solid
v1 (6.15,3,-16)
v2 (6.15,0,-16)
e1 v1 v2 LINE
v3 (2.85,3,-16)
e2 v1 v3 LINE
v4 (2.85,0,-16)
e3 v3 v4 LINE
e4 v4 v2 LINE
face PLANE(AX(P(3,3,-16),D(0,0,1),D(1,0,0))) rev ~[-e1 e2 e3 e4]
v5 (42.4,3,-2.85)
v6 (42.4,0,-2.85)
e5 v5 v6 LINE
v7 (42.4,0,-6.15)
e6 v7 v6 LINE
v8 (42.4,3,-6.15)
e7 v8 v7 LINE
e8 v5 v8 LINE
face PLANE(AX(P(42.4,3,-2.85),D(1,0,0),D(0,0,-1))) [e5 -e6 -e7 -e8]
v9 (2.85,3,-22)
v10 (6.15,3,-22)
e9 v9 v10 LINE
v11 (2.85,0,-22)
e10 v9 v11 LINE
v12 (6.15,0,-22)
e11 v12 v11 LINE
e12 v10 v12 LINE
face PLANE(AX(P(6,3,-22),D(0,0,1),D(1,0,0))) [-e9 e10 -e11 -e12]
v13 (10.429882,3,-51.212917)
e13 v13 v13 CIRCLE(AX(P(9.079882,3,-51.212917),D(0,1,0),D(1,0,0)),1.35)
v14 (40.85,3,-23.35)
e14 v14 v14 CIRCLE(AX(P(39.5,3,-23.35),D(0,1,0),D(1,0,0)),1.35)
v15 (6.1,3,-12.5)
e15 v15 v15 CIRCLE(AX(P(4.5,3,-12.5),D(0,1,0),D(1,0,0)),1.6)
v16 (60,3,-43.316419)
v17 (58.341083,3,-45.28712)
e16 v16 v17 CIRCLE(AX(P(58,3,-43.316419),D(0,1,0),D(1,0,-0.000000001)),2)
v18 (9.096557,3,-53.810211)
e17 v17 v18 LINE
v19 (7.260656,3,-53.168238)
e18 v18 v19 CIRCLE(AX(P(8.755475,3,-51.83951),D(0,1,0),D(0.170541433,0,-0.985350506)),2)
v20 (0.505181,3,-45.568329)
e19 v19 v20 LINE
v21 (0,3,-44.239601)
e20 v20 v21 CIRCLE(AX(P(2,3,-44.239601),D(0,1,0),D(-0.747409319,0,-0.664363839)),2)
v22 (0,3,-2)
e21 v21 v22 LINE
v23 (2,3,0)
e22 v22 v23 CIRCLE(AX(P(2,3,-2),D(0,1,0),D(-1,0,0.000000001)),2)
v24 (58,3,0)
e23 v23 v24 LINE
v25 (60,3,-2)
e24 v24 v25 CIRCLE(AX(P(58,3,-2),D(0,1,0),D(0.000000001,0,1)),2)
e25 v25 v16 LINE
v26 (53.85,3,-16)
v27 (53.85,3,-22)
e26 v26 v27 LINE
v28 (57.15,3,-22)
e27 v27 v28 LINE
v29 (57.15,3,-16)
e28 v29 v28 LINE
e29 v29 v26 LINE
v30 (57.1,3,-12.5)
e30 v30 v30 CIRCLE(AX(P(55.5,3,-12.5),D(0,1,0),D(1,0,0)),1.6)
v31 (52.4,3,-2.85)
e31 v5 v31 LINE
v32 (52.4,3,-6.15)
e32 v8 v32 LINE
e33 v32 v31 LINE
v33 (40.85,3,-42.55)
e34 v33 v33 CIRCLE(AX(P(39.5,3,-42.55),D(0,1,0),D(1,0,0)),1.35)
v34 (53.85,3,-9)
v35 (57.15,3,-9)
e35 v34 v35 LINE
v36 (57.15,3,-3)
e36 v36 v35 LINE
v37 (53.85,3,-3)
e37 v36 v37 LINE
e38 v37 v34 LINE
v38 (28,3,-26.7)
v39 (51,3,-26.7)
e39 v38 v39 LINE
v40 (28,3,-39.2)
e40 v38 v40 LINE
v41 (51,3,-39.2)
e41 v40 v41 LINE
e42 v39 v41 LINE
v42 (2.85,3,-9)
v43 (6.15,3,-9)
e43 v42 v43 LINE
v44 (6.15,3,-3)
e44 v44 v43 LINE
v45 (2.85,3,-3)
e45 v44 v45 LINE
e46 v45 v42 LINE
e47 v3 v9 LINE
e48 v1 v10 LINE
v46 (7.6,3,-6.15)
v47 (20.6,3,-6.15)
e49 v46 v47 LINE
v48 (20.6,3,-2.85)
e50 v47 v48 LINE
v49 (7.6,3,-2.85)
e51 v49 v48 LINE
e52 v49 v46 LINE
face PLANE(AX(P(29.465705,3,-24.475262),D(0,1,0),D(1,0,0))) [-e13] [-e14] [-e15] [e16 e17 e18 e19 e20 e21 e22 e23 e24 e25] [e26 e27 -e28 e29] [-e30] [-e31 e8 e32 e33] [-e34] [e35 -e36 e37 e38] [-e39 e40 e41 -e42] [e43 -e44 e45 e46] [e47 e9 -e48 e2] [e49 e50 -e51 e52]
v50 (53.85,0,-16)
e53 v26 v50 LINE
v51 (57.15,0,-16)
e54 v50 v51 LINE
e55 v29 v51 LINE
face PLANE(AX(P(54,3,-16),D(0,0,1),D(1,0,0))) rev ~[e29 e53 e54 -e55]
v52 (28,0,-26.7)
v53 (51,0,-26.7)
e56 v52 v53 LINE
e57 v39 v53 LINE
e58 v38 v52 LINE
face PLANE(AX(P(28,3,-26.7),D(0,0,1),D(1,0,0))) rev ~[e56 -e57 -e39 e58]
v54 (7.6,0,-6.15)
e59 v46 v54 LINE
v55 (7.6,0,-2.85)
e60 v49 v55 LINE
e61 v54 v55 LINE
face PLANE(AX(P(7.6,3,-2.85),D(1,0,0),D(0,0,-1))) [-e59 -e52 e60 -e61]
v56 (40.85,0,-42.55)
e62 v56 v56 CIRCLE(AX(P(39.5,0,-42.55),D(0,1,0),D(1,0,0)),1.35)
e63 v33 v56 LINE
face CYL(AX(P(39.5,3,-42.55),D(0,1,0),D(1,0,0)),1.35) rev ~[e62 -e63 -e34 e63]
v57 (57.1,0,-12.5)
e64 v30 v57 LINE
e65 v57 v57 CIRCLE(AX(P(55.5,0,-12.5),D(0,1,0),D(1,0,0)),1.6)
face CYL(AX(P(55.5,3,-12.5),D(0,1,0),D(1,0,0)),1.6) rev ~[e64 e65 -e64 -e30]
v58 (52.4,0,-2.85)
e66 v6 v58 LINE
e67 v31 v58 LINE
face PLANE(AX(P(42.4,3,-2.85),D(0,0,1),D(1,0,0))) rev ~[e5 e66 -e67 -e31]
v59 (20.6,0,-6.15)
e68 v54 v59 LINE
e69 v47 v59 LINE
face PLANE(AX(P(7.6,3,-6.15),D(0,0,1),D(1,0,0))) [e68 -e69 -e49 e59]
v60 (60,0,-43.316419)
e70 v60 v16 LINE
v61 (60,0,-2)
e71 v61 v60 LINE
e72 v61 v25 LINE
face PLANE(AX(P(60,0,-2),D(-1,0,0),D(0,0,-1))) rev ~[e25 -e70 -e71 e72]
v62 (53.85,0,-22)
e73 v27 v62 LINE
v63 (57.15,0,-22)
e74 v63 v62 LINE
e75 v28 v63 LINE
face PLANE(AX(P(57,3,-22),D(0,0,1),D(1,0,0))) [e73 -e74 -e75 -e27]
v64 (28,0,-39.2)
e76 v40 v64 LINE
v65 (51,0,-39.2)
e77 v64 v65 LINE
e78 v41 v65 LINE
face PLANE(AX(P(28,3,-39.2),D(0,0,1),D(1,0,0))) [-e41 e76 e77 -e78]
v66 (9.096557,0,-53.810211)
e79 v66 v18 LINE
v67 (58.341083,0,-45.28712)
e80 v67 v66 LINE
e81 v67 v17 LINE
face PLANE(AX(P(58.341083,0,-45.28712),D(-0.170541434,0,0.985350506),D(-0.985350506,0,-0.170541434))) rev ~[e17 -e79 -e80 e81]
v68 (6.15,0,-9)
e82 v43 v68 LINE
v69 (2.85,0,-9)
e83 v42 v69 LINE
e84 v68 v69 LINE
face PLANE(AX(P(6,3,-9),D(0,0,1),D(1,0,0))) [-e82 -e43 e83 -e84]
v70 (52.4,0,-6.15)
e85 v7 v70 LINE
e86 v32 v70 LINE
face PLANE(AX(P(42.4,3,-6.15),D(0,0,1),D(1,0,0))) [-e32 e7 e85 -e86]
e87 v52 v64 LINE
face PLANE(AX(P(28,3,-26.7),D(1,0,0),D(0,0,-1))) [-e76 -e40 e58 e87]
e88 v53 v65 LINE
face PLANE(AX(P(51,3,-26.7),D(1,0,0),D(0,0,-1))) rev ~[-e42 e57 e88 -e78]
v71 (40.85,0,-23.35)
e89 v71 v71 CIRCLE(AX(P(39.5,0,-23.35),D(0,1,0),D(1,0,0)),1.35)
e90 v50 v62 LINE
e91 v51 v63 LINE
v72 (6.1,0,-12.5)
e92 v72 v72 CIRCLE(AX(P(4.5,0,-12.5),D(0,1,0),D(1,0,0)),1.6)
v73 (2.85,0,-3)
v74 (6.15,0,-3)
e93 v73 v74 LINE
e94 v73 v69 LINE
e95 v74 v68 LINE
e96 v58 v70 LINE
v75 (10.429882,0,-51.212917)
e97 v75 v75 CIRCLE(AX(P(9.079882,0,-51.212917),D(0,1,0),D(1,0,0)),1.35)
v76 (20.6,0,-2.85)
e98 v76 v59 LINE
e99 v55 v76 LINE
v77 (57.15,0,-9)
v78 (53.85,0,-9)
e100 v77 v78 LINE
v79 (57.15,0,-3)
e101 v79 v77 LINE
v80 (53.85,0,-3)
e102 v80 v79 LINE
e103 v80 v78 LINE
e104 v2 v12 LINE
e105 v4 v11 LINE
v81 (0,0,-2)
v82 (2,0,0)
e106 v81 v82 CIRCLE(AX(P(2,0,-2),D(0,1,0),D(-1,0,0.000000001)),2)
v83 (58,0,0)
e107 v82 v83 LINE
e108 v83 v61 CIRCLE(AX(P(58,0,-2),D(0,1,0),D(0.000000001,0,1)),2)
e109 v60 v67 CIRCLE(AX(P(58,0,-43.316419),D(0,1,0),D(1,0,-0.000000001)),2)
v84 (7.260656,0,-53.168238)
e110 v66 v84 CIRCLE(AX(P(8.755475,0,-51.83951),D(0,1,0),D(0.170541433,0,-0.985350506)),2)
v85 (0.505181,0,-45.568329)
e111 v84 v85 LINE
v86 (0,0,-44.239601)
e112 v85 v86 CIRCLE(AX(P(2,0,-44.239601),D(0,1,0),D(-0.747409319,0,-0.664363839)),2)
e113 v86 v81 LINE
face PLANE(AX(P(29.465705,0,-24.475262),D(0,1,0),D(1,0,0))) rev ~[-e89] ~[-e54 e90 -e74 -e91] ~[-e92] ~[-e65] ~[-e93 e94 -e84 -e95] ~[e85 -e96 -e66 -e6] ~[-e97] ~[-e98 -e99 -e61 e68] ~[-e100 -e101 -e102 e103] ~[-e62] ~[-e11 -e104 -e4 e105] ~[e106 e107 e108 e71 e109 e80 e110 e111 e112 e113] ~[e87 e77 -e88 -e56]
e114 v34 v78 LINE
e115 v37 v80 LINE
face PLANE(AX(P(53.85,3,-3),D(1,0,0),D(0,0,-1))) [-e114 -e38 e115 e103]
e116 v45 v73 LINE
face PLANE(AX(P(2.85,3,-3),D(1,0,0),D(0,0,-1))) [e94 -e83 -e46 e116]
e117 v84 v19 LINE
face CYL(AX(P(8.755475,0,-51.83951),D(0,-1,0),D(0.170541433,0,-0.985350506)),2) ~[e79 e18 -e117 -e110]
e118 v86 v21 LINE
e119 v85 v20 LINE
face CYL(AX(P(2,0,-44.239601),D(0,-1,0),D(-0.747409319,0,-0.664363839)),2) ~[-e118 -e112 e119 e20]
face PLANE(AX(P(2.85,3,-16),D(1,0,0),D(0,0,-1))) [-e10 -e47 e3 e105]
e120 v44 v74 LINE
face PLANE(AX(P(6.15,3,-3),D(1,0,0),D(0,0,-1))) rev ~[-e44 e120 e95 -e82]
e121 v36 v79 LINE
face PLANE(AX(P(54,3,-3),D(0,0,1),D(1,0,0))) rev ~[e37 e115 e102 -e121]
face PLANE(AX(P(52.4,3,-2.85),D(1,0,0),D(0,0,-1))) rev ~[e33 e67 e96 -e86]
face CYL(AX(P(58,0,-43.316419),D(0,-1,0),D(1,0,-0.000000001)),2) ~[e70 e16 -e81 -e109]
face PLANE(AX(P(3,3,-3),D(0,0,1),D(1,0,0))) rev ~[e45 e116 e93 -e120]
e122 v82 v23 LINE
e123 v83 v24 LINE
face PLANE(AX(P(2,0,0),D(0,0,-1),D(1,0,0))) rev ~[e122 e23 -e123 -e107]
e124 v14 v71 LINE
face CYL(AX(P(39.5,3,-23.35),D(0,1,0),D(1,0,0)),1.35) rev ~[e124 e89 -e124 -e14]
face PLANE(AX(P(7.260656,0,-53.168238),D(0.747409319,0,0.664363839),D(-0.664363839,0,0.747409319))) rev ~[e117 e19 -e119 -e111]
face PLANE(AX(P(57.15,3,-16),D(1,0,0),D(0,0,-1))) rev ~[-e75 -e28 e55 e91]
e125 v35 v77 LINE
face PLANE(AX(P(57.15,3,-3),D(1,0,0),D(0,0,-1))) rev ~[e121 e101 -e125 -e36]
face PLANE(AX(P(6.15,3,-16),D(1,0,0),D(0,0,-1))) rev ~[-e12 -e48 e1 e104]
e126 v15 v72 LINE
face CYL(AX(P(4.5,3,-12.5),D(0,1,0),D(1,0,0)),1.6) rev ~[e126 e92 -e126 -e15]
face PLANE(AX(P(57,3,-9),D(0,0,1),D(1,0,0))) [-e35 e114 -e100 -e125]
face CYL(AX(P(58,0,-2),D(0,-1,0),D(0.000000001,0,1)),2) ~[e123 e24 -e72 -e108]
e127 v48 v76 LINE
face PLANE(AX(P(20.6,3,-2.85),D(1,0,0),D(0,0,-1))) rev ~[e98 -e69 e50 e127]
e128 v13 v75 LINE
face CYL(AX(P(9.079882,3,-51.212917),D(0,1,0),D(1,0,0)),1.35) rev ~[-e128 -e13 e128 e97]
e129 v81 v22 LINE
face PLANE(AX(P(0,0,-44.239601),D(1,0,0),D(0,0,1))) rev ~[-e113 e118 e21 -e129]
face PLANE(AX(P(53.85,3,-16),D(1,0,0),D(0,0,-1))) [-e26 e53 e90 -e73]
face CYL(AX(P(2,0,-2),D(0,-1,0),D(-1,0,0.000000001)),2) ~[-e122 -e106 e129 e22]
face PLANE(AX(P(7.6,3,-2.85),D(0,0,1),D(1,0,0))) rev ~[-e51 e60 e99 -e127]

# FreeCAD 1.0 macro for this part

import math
import FreeCAD as App
import Part
import Sketcher

V = App.Vector


def add_polygon(sketch, points):
    """Adds a closed chain of lines whose ends are joined by coincident constraints."""
    first, n = sketch.GeometryCount, len(points)
    for a, b in zip(points, points[1:] + points[:1]):
        sketch.addGeometry(Part.LineSegment(App.Vector(*a, 0), App.Vector(*b, 0)), False)
    for i in range(n):
        sketch.addConstraint(Sketcher.Constraint("Coincident", first + i, 2, first + (i + 1) % n, 1))

doc = App.newDocument("Part")
body = doc.addObject("PartDesign::Body", "Body")

# Sketch on XZ plane
sketch1 = body.newObject("Sketcher::SketchObject", "Sketch")
sketch1.AttachmentSupport = (doc.getObject("XZ_Plane"), [""])
sketch1.MapMode = "FlatFace"
sketch1.addGeometry([
    Part.LineSegment(V(58.3, -45.3, 0), V(9.1, -53.8, 0)),  # 0
    Part.ArcOfCircle(Part.Circle(V(8.8, -51.8, 0), V(0, 0, 1), 2), math.radians(-138), math.radians(-80)),  # 1
    Part.LineSegment(V(7.3, -53.2, 0), V(0.5, -45.6, 0)),  # 2
    Part.ArcOfCircle(Part.Circle(V(2, -44.2, 0), V(0, 0, 1), 2), math.radians(180), math.radians(222)),  # 3
    Part.LineSegment(V(0, -44.2, 0), V(0, -2, 0)),  # 4
    Part.ArcOfCircle(Part.Circle(V(2, -2, 0), V(0, 0, 1), 2), math.radians(90), math.radians(180)),  # 5
    Part.LineSegment(V(2, 0, 0), V(58, 0, 0)),  # 6
    Part.ArcOfCircle(Part.Circle(V(58, -2, 0), V(0, 0, 1), 2), math.radians(0), math.radians(90)),  # 7
    Part.LineSegment(V(60, -2, 0), V(60, -43.3, 0)),  # 8
    Part.ArcOfCircle(Part.Circle(V(58, -43.3, 0), V(0, 0, 1), 2), math.radians(-80), math.radians(0)),  # 9
], False)
sketch1.addConstraint([
    Sketcher.Constraint("Tangent", 0, 2, 1, 2),
    Sketcher.Constraint("Tangent", 1, 1, 2, 1),
    Sketcher.Constraint("Tangent", 2, 2, 3, 2),
    Sketcher.Constraint("Tangent", 3, 1, 4, 1),
    Sketcher.Constraint("Tangent", 4, 2, 5, 2),
    Sketcher.Constraint("Tangent", 5, 1, 6, 1),
    Sketcher.Constraint("Tangent", 6, 2, 7, 2),
    Sketcher.Constraint("Tangent", 7, 1, 8, 1),
    Sketcher.Constraint("Tangent", 8, 2, 9, 2),
    Sketcher.Constraint("Tangent", 9, 1, 0, 1),
    Sketcher.Constraint("Vertical", 4),
    Sketcher.Constraint("Horizontal", 6),
    Sketcher.Constraint("Vertical", 8),
    Sketcher.Constraint("Equal", 1, 3),
    Sketcher.Constraint("Equal", 3, 5),
    Sketcher.Constraint("Equal", 5, 7),
    Sketcher.Constraint("Equal", 7, 9),
    Sketcher.Constraint("PointOnObject", 3, 1, -2),
    Sketcher.Constraint("PointOnObject", 5, 1, -1),
    Sketcher.Constraint("Radius", 1, 2.0),
    Sketcher.Constraint("DistanceX", 6, 1, 6, 2, 56.0),
    Sketcher.Constraint("DistanceY", 4, 1, 4, 2, 42.239601),
    Sketcher.Constraint("DistanceY", 8, 2, 8, 1, 41.316419),
    Sketcher.Constraint("DistanceY", 0, 2, 1, 3, 1.970701),
    Sketcher.Constraint("DistanceX", 1, 1, 0, 2, 1.835902),
])
pad1 = body.newObject("PartDesign::Pad", "Pad")
pad1.Profile = sketch1
pad1.Length = 3
pad1.Reversed = True

# Sketch on XZ plane
sketch2 = body.newObject("Sketcher::SketchObject", "Sketch001")
sketch2.AttachmentSupport = (doc.getObject("XZ_Plane"), [""])
sketch2.MapMode = "FlatFace"
sketch2.AttachmentOffset = App.Placement(V(0, 0, -3), App.Rotation())
sketch2.addGeometry(Part.Circle(V(9.1, -51.2, 0), V(0, 0, 1), 1.4), False)  # 0
sketch2.addGeometry(Part.Circle(V(39.5, -42.5, 0), V(0, 0, 1), 1.4), False)  # 1
sketch2.addGeometry(Part.Circle(V(39.5, -23.4, 0), V(0, 0, 1), 1.4), False)  # 2
sketch2.addGeometry(Part.Circle(V(55.5, -12.5, 0), V(0, 0, 1), 1.6), False)  # 3
sketch2.addGeometry(Part.Circle(V(4.5, -12.5, 0), V(0, 0, 1), 1.6), False)  # 4
add_polygon(sketch2, [(3, -9), (3, -3), (6, -3), (6, -9)])  # lines 5-8
add_polygon(sketch2, [(3, -22), (3, -16), (6, -16), (6, -22)])  # lines 9-12
add_polygon(sketch2, [(54, -9), (54, -3), (57, -3), (57, -9)])  # lines 13-16
add_polygon(sketch2, [(54, -22), (54, -16), (57, -16), (57, -22)])  # lines 17-20
add_polygon(sketch2, [(7.6, -6), (7.6, -3), (20.6, -3), (20.6, -6)])  # lines 21-24
add_polygon(sketch2, [(42.4, -6), (42.4, -3), (52.4, -3), (52.4, -6)])  # lines 25-28
add_polygon(sketch2, [(28, -39.2), (28, -26.7), (51, -26.7), (51, -39.2)])  # lines 29-32
sketch2.addConstraint([
    Sketcher.Constraint("Vertical", 5),
    Sketcher.Constraint("Horizontal", 6),
    Sketcher.Constraint("Vertical", 7),
    Sketcher.Constraint("Horizontal", 8),
    Sketcher.Constraint("Vertical", 9),
    Sketcher.Constraint("Horizontal", 10),
    Sketcher.Constraint("Vertical", 11),
    Sketcher.Constraint("Horizontal", 12),
    Sketcher.Constraint("Vertical", 13),
    Sketcher.Constraint("Horizontal", 14),
    Sketcher.Constraint("Vertical", 15),
    Sketcher.Constraint("Horizontal", 16),
    Sketcher.Constraint("Vertical", 17),
    Sketcher.Constraint("Horizontal", 18),
    Sketcher.Constraint("Vertical", 19),
    Sketcher.Constraint("Horizontal", 20),
    Sketcher.Constraint("Vertical", 21),
    Sketcher.Constraint("Horizontal", 22),
    Sketcher.Constraint("Vertical", 23),
    Sketcher.Constraint("Horizontal", 24),
    Sketcher.Constraint("Vertical", 25),
    Sketcher.Constraint("Horizontal", 26),
    Sketcher.Constraint("Vertical", 27),
    Sketcher.Constraint("Horizontal", 28),
    Sketcher.Constraint("Vertical", 29),
    Sketcher.Constraint("Horizontal", 30),
    Sketcher.Constraint("Vertical", 31),
    Sketcher.Constraint("Horizontal", 32),
    Sketcher.Constraint("Equal", 0, 1),
    Sketcher.Constraint("Equal", 1, 2),
    Sketcher.Constraint("Equal", 3, 4),
    Sketcher.Constraint("Horizontal", 3, 3, 4, 3),
    Sketcher.Constraint("Horizontal", 6, 2, 13, 2),
    Sketcher.Constraint("Horizontal", 8, 2, 15, 2),
    Sketcher.Constraint("Horizontal", 10, 2, 17, 2),
    Sketcher.Constraint("Horizontal", 12, 2, 19, 2),
    Sketcher.Constraint("Horizontal", 14, 2, 21, 2),
    Sketcher.Constraint("Horizontal", 22, 2, 25, 2),
    Sketcher.Constraint("Horizontal", 24, 2, 27, 2),
    Sketcher.Constraint("Vertical", 1, 3, 2, 3),
    Sketcher.Constraint("Vertical", 8, 2, 9, 2),
    Sketcher.Constraint("Vertical", 7, 2, 10, 2),
    Sketcher.Constraint("Vertical", 16, 2, 17, 2),
    Sketcher.Constraint("Vertical", 15, 2, 18, 2),
    Sketcher.Constraint("Equal", 12, 14),
    Sketcher.Constraint("Equal", 7, 9),
    Sketcher.Constraint("Equal", 20, 21),
    Sketcher.Constraint("Diameter", 0, 2.7),
    Sketcher.Constraint("Diameter", 3, 3.2),
    Sketcher.Constraint("DistanceX", 6, 1, 6, 2, 3.0),
    Sketcher.Constraint("DistanceX", 22, 1, 22, 2, 13.0),
    Sketcher.Constraint("DistanceX", 26, 1, 26, 2, 10.0),
    Sketcher.Constraint("DistanceX", 30, 1, 30, 2, 23.0),
    Sketcher.Constraint("DistanceY", 5, 1, 5, 2, 6.0),
    Sketcher.Constraint("DistanceY", 29, 1, 29, 2, 12.5),
    Sketcher.Constraint("DistanceX", -1, 1, 5, 2, 3.0),
    Sketcher.Constraint("DistanceY", 5, 2, -1, 1, 3.0),
    Sketcher.Constraint("DistanceY", 9, 2, -1, 1, 16.0),
    Sketcher.Constraint("DistanceX", -1, 1, 13, 2, 54.0),
    Sketcher.Constraint("DistanceX", -1, 1, 29, 2, 28.0),
    Sketcher.Constraint("DistanceX", 2, 3, 3, 3, 16.0),
    Sketcher.Constraint("DistanceX", 4, 3, 2, 3, 35.0),
    Sketcher.Constraint("DistanceX", -1, 1, 1, 3, 39.5),
    Sketcher.Constraint("DistanceY", 3, 3, -1, 1, 12.5),
    Sketcher.Constraint("DistanceX", -1, 1, 21, 2, 7.6),
    Sketcher.Constraint("DistanceX", -1, 1, 25, 2, 42.4),
    Sketcher.Constraint("DistanceY", 29, 2, -1, 1, 26.7),
    Sketcher.Constraint("DistanceY", 1, 3, 2, 3, 19.2),
    Sketcher.Constraint("DistanceY", 1, 3, -1, 1, 42.55),
    Sketcher.Constraint("DistanceX", -1, 1, 0, 3, 9.079882),
    Sketcher.Constraint("DistanceY", 0, 3, -1, 1, 51.212917),
])
pocket1 = body.newObject("PartDesign::Pocket", "Pocket")
pocket1.Profile = sketch2
pocket1.Type = "ThroughAll"
pocket1.Reversed = True

# Sketch on XZ plane
sketch3 = body.newObject("Sketcher::SketchObject", "Sketch002")
sketch3.AttachmentSupport = (doc.getObject("XZ_Plane"), [""])
sketch3.MapMode = "FlatFace"
sketch3.AttachmentOffset = App.Placement(V(0, 0, -3), App.Rotation())
add_polygon(sketch3, [(6, -22), (6, -16), (6.15, -16), (6.15, -22)])  # lines 0-3
add_polygon(sketch3, [(2.85, -22), (2.85, -16), (3, -16), (3, -22)])  # lines 4-7
add_polygon(sketch3, [(6, -9), (6, -3), (6.15, -3), (6.15, -9)])  # lines 8-11
add_polygon(sketch3, [(2.85, -9), (2.85, -3), (3, -3), (3, -9)])  # lines 12-15
add_polygon(sketch3, [(57, -9), (57, -3), (57.15, -3), (57.15, -9)])  # lines 16-19
add_polygon(sketch3, [(53.85, -9), (53.85, -3), (54, -3), (54, -9)])  # lines 20-23
add_polygon(sketch3, [(57, -22), (57, -16), (57.15, -16), (57.15, -22)])  # lines 24-27
add_polygon(sketch3, [(53.85, -22), (53.85, -16), (54, -16), (54, -22)])  # lines 28-31
add_polygon(sketch3, [(42.4, -6.15), (42.4, -6), (52.4, -6), (52.4, -6.15)])  # lines 32-35
add_polygon(sketch3, [(42.4, -3), (42.4, -2.85), (52.4, -2.85), (52.4, -3)])  # lines 36-39
add_polygon(sketch3, [(7.6, -6.15), (7.6, -6), (20.6, -6), (20.6, -6.15)])  # lines 40-43
add_polygon(sketch3, [(7.6, -3), (7.6, -2.85), (20.6, -2.85), (20.6, -3)])  # lines 44-47
sketch3.addConstraint([
    Sketcher.Constraint("Vertical", 0),
    Sketcher.Constraint("Horizontal", 1),
    Sketcher.Constraint("Vertical", 2),
    Sketcher.Constraint("Horizontal", 3),
    Sketcher.Constraint("Vertical", 4),
    Sketcher.Constraint("Horizontal", 5),
    Sketcher.Constraint("Vertical", 6),
    Sketcher.Constraint("Horizontal", 7),
    Sketcher.Constraint("Vertical", 8),
    Sketcher.Constraint("Horizontal", 9),
    Sketcher.Constraint("Vertical", 10),
    Sketcher.Constraint("Horizontal", 11),
    Sketcher.Constraint("Vertical", 12),
    Sketcher.Constraint("Horizontal", 13),
    Sketcher.Constraint("Vertical", 14),
    Sketcher.Constraint("Horizontal", 15),
    Sketcher.Constraint("Vertical", 16),
    Sketcher.Constraint("Horizontal", 17),
    Sketcher.Constraint("Vertical", 18),
    Sketcher.Constraint("Horizontal", 19),
    Sketcher.Constraint("Vertical", 20),
    Sketcher.Constraint("Horizontal", 21),
    Sketcher.Constraint("Vertical", 22),
    Sketcher.Constraint("Horizontal", 23),
    Sketcher.Constraint("Vertical", 24),
    Sketcher.Constraint("Horizontal", 25),
    Sketcher.Constraint("Vertical", 26),
    Sketcher.Constraint("Horizontal", 27),
    Sketcher.Constraint("Vertical", 28),
    Sketcher.Constraint("Horizontal", 29),
    Sketcher.Constraint("Vertical", 30),
    Sketcher.Constraint("Horizontal", 31),
    Sketcher.Constraint("Vertical", 32),
    Sketcher.Constraint("Horizontal", 33),
    Sketcher.Constraint("Vertical", 34),
    Sketcher.Constraint("Horizontal", 35),
    Sketcher.Constraint("Vertical", 36),
    Sketcher.Constraint("Horizontal", 37),
    Sketcher.Constraint("Vertical", 38),
    Sketcher.Constraint("Horizontal", 39),
    Sketcher.Constraint("Vertical", 40),
    Sketcher.Constraint("Horizontal", 41),
    Sketcher.Constraint("Vertical", 42),
    Sketcher.Constraint("Horizontal", 43),
    Sketcher.Constraint("Vertical", 44),
    Sketcher.Constraint("Horizontal", 45),
    Sketcher.Constraint("Vertical", 46),
    Sketcher.Constraint("Horizontal", 47),
    Sketcher.Constraint("Horizontal", 1, 2, 4, 2),
    Sketcher.Constraint("Horizontal", 3, 2, 6, 2),
    Sketcher.Constraint("Horizontal", 9, 2, 12, 2),
    Sketcher.Constraint("Horizontal", 11, 2, 14, 2),
    Sketcher.Constraint("Horizontal", 13, 2, 16, 2),
    Sketcher.Constraint("Horizontal", 15, 2, 18, 2),
    Sketcher.Constraint("Horizontal", 17, 2, 20, 2),
    Sketcher.Constraint("Horizontal", 19, 2, 22, 2),
    Sketcher.Constraint("Horizontal", 5, 2, 24, 2),
    Sketcher.Constraint("Horizontal", 7, 2, 26, 2),
    Sketcher.Constraint("Horizontal", 25, 2, 28, 2),
    Sketcher.Constraint("Horizontal", 27, 2, 30, 2),
    Sketcher.Constraint("Horizontal", 21, 2, 38, 2),
    Sketcher.Constraint("Horizontal", 33, 2, 40, 2),
    Sketcher.Constraint("Horizontal", 35, 2, 42, 2),
    Sketcher.Constraint("Horizontal", 37, 2, 44, 2),
    Sketcher.Constraint("Horizontal", 39, 2, 46, 2),
    Sketcher.Constraint("Vertical", 3, 2, 8, 2),
    Sketcher.Constraint("Vertical", 2, 2, 9, 2),
    Sketcher.Constraint("Vertical", 7, 2, 12, 2),
    Sketcher.Constraint("Vertical", 6, 2, 13, 2),
    Sketcher.Constraint("Vertical", 19, 2, 24, 2),
    Sketcher.Constraint("Vertical", 18, 2, 25, 2),
    Sketcher.Constraint("Vertical", 23, 2, 28, 2),
    Sketcher.Constraint("Vertical", 22, 2, 29, 2),
    Sketcher.Constraint("Vertical", 35, 2, 36, 2),
    Sketcher.Constraint("Vertical", 34, 2, 37, 2),
    Sketcher.Constraint("Vertical", 43, 2, 44, 2),
    Sketcher.Constraint("Vertical", 42, 2, 45, 2),
    Sketcher.Constraint("Equal", 3, 5),
    Sketcher.Constraint("Equal", 15, 17),
    Sketcher.Constraint("Equal", 19, 21),
    Sketcher.Constraint("Equal", 6, 8),
    Sketcher.Constraint("Equal", 31, 32),
    Sketcher.Constraint("Equal", 34, 36),
    Sketcher.Constraint("DistanceX", 33, 1, 33, 2, 10.0),
    Sketcher.Constraint("DistanceX", 41, 1, 41, 2, 13.0),
    Sketcher.Constraint("DistanceY", 0, 1, 0, 2, 6.0),
    Sketcher.Constraint("DistanceX", -1, 1, 0, 2, 6.0),
    Sketcher.Constraint("DistanceY", 0, 2, -1, 1, 16.0),
    Sketcher.Constraint("DistanceX", -1, 1, 5, 2, 3.0),
    Sketcher.Constraint("DistanceY", 8, 2, -1, 1, 3.0),
    Sketcher.Constraint("DistanceX", -1, 1, 16, 2, 57.0),
    Sketcher.Constraint("DistanceX", -1, 1, 21, 2, 54.0),
    Sketcher.Constraint("DistanceY", 32, 2, -1, 1, 6.0),
    Sketcher.Constraint("DistanceX", 1, 1, 1, 2, 0.15),
    Sketcher.Constraint("DistanceX", -1, 1, 32, 2, 42.4),
    Sketcher.Constraint("DistanceX", -1, 1, 40, 2, 7.6),
])
pocket2 = body.newObject("PartDesign::Pocket", "Pocket001")
pocket2.Profile = sketch3
pocket2.Type = "ThroughAll"
pocket2.Reversed = True

doc.recompute()
